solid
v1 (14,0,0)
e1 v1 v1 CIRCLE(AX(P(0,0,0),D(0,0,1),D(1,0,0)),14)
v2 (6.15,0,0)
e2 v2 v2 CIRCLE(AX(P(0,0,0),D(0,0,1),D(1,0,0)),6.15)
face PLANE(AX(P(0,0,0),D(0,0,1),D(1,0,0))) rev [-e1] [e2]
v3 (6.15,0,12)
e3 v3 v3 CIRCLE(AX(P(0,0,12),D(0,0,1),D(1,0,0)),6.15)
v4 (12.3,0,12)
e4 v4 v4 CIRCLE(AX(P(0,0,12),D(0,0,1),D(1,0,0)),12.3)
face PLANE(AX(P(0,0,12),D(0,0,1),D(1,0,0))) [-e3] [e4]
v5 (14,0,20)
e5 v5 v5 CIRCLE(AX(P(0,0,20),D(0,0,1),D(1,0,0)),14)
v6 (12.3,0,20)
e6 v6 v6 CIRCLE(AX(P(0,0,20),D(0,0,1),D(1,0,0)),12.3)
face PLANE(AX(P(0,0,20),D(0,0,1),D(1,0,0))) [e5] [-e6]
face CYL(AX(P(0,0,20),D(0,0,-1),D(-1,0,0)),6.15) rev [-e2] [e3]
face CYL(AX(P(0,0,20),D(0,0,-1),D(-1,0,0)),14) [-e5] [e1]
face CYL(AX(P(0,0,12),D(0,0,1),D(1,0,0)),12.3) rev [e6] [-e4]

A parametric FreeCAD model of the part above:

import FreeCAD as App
import Part
import Sketcher

doc = App.newDocument("Part")
body = doc.addObject("PartDesign::Body", "Body")

# Sketch on XY plane
sketch1 = body.newObject("Sketcher::SketchObject", "Sketch")
sketch1.AttachmentSupport = (doc.getObject("XY_Plane"), [""])
sketch1.MapMode = "FlatFace"
sketch1.addGeometry(Part.Circle(App.Vector(0, 0, 0), App.Vector(0, 0, 1), 14), False)
sketch1.addGeometry(Part.Circle(App.Vector(0, 0, 0), App.Vector(0, 0, 1), 6.15), False)
sketch1.addConstraint(Sketcher.Constraint("Coincident", 0, 3, -1, 1))
sketch1.addConstraint(Sketcher.Constraint("Coincident", 1, 3, -1, 1))
sketch1.addConstraint(Sketcher.Constraint("Diameter", 0, 28.0))
sketch1.addConstraint(Sketcher.Constraint("Diameter", 1, 12.3))
pad1 = body.newObject("PartDesign::Pad", "Pad")
pad1.Profile = sketch1
pad1.Length = 20

# Sketch on XY plane
sketch2 = body.newObject("Sketcher::SketchObject", "Sketch001")
sketch2.AttachmentSupport = (doc.getObject("XY_Plane"), [""])
sketch2.MapMode = "FlatFace"
sketch2.AttachmentOffset = App.Placement(App.Vector(0, 0, 20), App.Rotation())
sketch2.addGeometry(Part.Circle(App.Vector(0, 0, 0), App.Vector(0, 0, 1), 12.3), False)
sketch2.addConstraint(Sketcher.Constraint("Coincident", 0, 3, -1, 1))
sketch2.addConstraint(Sketcher.Constraint("Diameter", 0, 24.6))
pocket1 = body.newObject("PartDesign::Pocket", "Pocket")
pocket1.Profile = sketch2
pocket1.Length = 8

doc.recompute()
